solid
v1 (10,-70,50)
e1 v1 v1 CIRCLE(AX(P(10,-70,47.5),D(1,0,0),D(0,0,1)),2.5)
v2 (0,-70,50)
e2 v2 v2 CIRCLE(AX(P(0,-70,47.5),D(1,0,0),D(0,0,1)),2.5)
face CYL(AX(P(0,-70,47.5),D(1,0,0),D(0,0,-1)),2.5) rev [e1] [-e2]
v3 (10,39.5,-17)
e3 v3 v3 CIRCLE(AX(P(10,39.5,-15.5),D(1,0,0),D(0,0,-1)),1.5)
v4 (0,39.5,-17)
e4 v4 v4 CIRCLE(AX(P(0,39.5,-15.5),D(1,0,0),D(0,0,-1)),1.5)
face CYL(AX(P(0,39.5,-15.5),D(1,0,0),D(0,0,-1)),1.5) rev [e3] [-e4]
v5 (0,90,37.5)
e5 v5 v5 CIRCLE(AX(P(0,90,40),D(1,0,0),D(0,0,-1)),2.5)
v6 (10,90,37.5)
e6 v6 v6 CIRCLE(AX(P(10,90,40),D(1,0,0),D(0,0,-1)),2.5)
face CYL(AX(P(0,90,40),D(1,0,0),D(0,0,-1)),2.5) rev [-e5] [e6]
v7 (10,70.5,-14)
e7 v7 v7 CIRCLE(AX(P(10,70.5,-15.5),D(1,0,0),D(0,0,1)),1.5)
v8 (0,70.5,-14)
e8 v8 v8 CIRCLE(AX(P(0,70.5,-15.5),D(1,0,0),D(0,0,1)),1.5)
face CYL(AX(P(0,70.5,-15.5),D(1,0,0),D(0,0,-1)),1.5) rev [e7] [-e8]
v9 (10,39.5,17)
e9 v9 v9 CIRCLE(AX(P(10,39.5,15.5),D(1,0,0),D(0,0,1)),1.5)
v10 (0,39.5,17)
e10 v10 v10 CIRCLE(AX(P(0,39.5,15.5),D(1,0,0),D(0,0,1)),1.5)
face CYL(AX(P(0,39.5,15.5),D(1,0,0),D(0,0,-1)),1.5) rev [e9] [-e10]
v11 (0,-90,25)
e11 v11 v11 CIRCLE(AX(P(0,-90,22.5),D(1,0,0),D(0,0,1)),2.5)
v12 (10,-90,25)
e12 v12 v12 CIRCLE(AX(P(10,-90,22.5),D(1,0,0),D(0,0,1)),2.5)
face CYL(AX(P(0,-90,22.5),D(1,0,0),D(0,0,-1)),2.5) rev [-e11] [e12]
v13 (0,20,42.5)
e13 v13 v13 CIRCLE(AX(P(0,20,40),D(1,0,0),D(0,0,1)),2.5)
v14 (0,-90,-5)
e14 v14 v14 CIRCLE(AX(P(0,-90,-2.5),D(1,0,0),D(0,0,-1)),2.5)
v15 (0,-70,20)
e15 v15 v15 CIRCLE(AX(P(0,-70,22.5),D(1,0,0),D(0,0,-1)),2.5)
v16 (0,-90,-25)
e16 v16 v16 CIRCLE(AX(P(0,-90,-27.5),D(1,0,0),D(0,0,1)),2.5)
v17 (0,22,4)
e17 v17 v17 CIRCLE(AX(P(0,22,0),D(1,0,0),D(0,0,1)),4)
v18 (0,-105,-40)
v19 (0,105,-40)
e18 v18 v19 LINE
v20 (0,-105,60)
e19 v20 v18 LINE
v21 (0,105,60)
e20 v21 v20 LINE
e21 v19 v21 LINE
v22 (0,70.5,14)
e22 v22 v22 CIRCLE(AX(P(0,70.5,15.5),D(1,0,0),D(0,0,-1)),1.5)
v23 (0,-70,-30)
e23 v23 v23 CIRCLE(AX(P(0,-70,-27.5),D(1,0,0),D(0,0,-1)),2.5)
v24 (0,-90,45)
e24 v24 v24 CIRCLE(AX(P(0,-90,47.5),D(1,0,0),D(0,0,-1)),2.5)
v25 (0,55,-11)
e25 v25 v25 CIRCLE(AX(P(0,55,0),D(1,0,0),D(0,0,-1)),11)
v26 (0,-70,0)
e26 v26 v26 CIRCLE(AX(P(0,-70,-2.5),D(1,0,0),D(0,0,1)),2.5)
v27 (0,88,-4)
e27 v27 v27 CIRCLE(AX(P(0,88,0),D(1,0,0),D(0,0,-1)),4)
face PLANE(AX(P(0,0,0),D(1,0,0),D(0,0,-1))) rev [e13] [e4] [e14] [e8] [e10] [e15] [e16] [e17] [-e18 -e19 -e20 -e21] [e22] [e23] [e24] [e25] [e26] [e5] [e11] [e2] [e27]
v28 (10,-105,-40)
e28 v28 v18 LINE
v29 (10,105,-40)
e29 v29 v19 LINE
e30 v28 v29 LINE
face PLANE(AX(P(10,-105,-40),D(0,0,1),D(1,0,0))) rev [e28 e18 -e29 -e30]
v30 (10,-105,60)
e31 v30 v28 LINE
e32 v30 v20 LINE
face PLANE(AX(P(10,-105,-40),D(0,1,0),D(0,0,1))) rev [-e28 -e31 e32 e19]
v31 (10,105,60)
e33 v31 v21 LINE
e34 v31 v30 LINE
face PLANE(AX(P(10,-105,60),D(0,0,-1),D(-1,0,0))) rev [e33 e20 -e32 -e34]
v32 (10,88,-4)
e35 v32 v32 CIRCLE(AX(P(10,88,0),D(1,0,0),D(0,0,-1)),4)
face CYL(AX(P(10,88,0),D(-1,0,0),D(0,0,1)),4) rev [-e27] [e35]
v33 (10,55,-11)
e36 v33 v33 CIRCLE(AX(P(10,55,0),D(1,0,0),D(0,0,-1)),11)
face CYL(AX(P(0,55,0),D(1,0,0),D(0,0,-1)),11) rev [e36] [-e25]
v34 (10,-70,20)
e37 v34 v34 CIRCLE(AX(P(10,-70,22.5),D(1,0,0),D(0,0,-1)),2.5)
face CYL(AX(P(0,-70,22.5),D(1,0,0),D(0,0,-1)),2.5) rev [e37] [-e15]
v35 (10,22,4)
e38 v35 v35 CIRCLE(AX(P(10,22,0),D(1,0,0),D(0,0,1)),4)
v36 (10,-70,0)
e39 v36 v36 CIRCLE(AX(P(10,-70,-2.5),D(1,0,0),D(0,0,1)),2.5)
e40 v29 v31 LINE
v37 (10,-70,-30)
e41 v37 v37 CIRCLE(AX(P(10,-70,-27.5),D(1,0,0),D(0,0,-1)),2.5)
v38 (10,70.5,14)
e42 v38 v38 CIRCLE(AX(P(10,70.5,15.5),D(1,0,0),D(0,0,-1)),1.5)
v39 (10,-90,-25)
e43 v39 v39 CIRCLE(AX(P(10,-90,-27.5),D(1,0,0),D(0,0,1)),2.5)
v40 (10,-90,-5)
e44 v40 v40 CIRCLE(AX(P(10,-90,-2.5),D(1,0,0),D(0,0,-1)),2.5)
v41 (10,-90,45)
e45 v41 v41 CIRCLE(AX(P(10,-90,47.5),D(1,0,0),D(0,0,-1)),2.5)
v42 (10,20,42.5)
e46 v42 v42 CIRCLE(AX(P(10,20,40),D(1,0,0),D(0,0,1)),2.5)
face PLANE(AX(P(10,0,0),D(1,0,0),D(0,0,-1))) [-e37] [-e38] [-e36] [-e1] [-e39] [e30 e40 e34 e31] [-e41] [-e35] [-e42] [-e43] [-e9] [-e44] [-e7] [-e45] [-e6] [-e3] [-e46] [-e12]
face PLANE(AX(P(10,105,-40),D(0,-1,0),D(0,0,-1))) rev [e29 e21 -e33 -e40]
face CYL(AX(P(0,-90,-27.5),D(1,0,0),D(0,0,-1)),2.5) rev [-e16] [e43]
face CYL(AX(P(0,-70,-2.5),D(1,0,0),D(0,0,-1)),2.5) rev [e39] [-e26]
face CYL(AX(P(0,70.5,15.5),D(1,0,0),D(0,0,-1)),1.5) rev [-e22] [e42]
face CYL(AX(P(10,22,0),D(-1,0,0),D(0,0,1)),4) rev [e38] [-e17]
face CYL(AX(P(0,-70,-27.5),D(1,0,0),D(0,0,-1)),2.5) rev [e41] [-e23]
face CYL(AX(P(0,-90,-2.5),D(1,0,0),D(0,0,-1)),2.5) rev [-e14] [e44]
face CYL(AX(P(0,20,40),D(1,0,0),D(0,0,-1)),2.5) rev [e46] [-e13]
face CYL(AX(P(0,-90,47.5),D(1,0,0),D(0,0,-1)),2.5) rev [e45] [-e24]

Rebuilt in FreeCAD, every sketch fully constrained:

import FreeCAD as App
import Part
import Sketcher

V = App.Vector

doc = App.newDocument("Part")
params = doc.addObject("Spreadsheet::Sheet", "Params")
for row, (alias, value) in enumerate([
    ("sketch1_diameter", "8 mm"),
    ("sketch1_width", "210 mm"),
    ("sketch1_height", "100 mm"),
    ("pad1_length", "10 mm"),
    ("sketch2_diameter", "5 mm"),
    ("sketch3_diameter", "5 mm"),
    ("sketch4_diameter", "22 mm"),
    ("sketch4_diameter2", "3 mm"),
], start=1):
    params.set(f"A{row}", alias)
    params.set(f"B{row}", "=" + value)
    params.setAlias(f"B{row}", alias)

body = doc.addObject("PartDesign::Body", "Body")

# Sketch on YZ plane
sketch1 = body.newObject("Sketcher::SketchObject", "Sketch")
sketch1.AttachmentSupport = (doc.getObject("YZ_Plane"), [""])
sketch1.MapMode = "FlatFace"
sketch1.addGeometry([
    Part.LineSegment(V(105, 60, 0), V(-105, 60, 0)),  # 0
    Part.LineSegment(V(-105, 60, 0), V(-105, -40, 0)),  # 1
    Part.LineSegment(V(-105, -40, 0), V(105, -40, 0)),  # 2
    Part.LineSegment(V(105, -40, 0), V(105, 60, 0)),  # 3
    Part.Circle(V(22, 0, 0), V(0, 0, 1), 4),  # 4
    Part.Circle(V(88, 0, 0), V(0, 0, 1), 4),  # 5
], False)
sketch1.addConstraint([
    Sketcher.Constraint("Coincident", 0, 2, 1, 1),
    Sketcher.Constraint("Coincident", 1, 2, 2, 1),
    Sketcher.Constraint("Coincident", 2, 2, 3, 1),
    Sketcher.Constraint("Coincident", 3, 2, 0, 1),
    Sketcher.Constraint("Horizontal", 0),
    Sketcher.Constraint("Vertical", 1),
    Sketcher.Constraint("Horizontal", 2),
    Sketcher.Constraint("Vertical", 3),
    Sketcher.Constraint("Equal", 4, 5),
    Sketcher.Constraint("PointOnObject", 4, 3, -1),
    Sketcher.Constraint("PointOnObject", 5, 3, -1),
    Sketcher.Constraint("Diameter", 4, 8.0),
    Sketcher.Constraint("DistanceX", 0, 2, 0, 1, 210.0),
    Sketcher.Constraint("DistanceY", 1, 2, 1, 1, 100.0),
    Sketcher.Constraint("DistanceX", -1, 1, 4, 3, 22.0),
    Sketcher.Constraint("DistanceX", -1, 1, 5, 3, 88.0),
    Sketcher.Constraint("DistanceX", 0, 2, -1, 1, 105.0),
    Sketcher.Constraint("DistanceY", -1, 1, 0, 2, 60.0),
])
sketch1.setExpression("Constraints[11]", "Params.sketch1_diameter")
sketch1.setExpression("Constraints[12]", "Params.sketch1_width")
sketch1.setExpression("Constraints[13]", "Params.sketch1_height")
pad1 = body.newObject("PartDesign::Pad", "Pad")
pad1.Profile = sketch1
pad1.setExpression("Length", "Params.pad1_length")

# Sketch on YZ plane
sketch2 = body.newObject("Sketcher::SketchObject", "Sketch001")
sketch2.AttachmentSupport = (doc.getObject("YZ_Plane"), [""])
sketch2.MapMode = "FlatFace"
sketch2.AttachmentOffset = App.Placement(V(0, 0, 10), App.Rotation())
sketch2.addGeometry([
    Part.Circle(V(-70, 22.5, 0), V(0, 0, 1), 2.5),  # 0
    Part.Circle(V(-70, 47.5, 0), V(0, 0, 1), 2.5),  # 1
    Part.Circle(V(-90, 47.5, 0), V(0, 0, 1), 2.5),  # 2
    Part.Circle(V(-90, 22.5, 0), V(0, 0, 1), 2.5),  # 3
    Part.Circle(V(-90, -2.5, 0), V(0, 0, 1), 2.5),  # 4
    Part.Circle(V(-90, -27.5, 0), V(0, 0, 1), 2.5),  # 5
    Part.Circle(V(-70, -27.5, 0), V(0, 0, 1), 2.5),  # 6
    Part.Circle(V(-70, -2.5, 0), V(0, 0, 1), 2.5),  # 7
], False)
sketch2.addConstraint([
    Sketcher.Constraint("Equal", 0, 1),
    Sketcher.Constraint("Equal", 1, 2),
    Sketcher.Constraint("Equal", 2, 3),
    Sketcher.Constraint("Equal", 3, 4),
    Sketcher.Constraint("Equal", 4, 5),
    Sketcher.Constraint("Equal", 5, 6),
    Sketcher.Constraint("Equal", 6, 7),
    Sketcher.Constraint("Horizontal", 1, 3, 2, 3),
    Sketcher.Constraint("Horizontal", 0, 3, 3, 3),
    Sketcher.Constraint("Horizontal", 5, 3, 6, 3),
    Sketcher.Constraint("Horizontal", 4, 3, 7, 3),
    Sketcher.Constraint("Vertical", 0, 3, 1, 3),
    Sketcher.Constraint("Vertical", 2, 3, 3, 3),
    Sketcher.Constraint("Vertical", 3, 3, 4, 3),
    Sketcher.Constraint("Vertical", 4, 3, 5, 3),
    Sketcher.Constraint("Vertical", 1, 3, 6, 3),
    Sketcher.Constraint("Vertical", 6, 3, 7, 3),
    Sketcher.Constraint("Diameter", 0, 5.0),
    Sketcher.Constraint("DistanceX", 0, 3, -1, 1, 70.0),
    Sketcher.Constraint("DistanceX", 2, 3, -1, 1, 90.0),
    Sketcher.Constraint("DistanceY", 0, 3, 1, 3, 25.0),
    Sketcher.Constraint("DistanceY", 4, 3, 3, 3, 25.0),
    Sketcher.Constraint("DistanceY", 5, 3, 4, 3, 25.0),
    Sketcher.Constraint("DistanceY", -1, 1, 0, 3, 22.5),
])
sketch2.setExpression("Constraints[17]", "Params.sketch2_diameter")
pocket1 = body.newObject("PartDesign::Pocket", "Pocket")
pocket1.Profile = sketch2
pocket1.Type = "ThroughAll"

# Sketch on YZ plane
sketch3 = body.newObject("Sketcher::SketchObject", "Sketch002")
sketch3.AttachmentSupport = (doc.getObject("YZ_Plane"), [""])
sketch3.MapMode = "FlatFace"
sketch3.AttachmentOffset = App.Placement(V(0, 0, 10), App.Rotation())
sketch3.addGeometry([
    Part.Circle(V(90, 40, 0), V(0, 0, 1), 2.5),
    Part.Circle(V(20, 40, 0), V(0, 0, 1), 2.5),
], False)
sketch3.addConstraint([
    Sketcher.Constraint("Equal", 0, 1),
    Sketcher.Constraint("Horizontal", 0, 3, 1, 3),
    Sketcher.Constraint("Diameter", 0, 5.0),
    Sketcher.Constraint("DistanceX", -1, 1, 0, 3, 90.0),
    Sketcher.Constraint("DistanceY", -1, 1, 0, 3, 40.0),
    Sketcher.Constraint("DistanceX", -1, 1, 1, 3, 20.0),
])
sketch3.setExpression("Constraints[2]", "Params.sketch3_diameter")
pocket2 = body.newObject("PartDesign::Pocket", "Pocket001")
pocket2.Profile = sketch3
pocket2.Type = "ThroughAll"

# Sketch on YZ plane
sketch4 = body.newObject("Sketcher::SketchObject", "Sketch003")
sketch4.AttachmentSupport = (doc.getObject("YZ_Plane"), [""])
sketch4.MapMode = "FlatFace"
sketch4.AttachmentOffset = App.Placement(V(0, 0, 10), App.Rotation())
sketch4.addGeometry([
    Part.Circle(V(55, 0, 0), V(0, 0, 1), 11),  # 0
    Part.Circle(V(70.5, 15.5, 0), V(0, 0, 1), 1.5),  # 1
    Part.Circle(V(70.5, -15.5, 0), V(0, 0, 1), 1.5),  # 2
    Part.Circle(V(39.5, 15.5, 0), V(0, 0, 1), 1.5),  # 3
    Part.Circle(V(39.5, -15.5, 0), V(0, 0, 1), 1.5),  # 4
], False)
sketch4.addConstraint([
    Sketcher.Constraint("Equal", 1, 2),
    Sketcher.Constraint("Equal", 2, 3),
    Sketcher.Constraint("Equal", 3, 4),
    Sketcher.Constraint("Symmetric", 1, 3, 2, 3, -1),
    Sketcher.Constraint("Symmetric", 3, 3, 4, 3, -1),
    Sketcher.Constraint("PointOnObject", 0, 3, -1),
    Sketcher.Constraint("Horizontal", 1, 3, 3, 3),
    Sketcher.Constraint("Diameter", 0, 22.0),
    Sketcher.Constraint("Diameter", 1, 3.0),
    Sketcher.Constraint("DistanceX", -1, 1, 0, 3, 55.0),
    Sketcher.Constraint("DistanceY", 2, 3, 1, 3, 31.0),
    Sketcher.Constraint("DistanceX", 3, 3, 1, 3, 31.0),
    Sketcher.Constraint("DistanceX", -1, 1, 1, 3, 70.5),
])
sketch4.setExpression("Constraints[7]", "Params.sketch4_diameter")
sketch4.setExpression("Constraints[8]", "Params.sketch4_diameter2")
pocket3 = body.newObject("PartDesign::Pocket", "Pocket002")
pocket3.Profile = sketch4
pocket3.Type = "ThroughAll"

doc.recompute()
